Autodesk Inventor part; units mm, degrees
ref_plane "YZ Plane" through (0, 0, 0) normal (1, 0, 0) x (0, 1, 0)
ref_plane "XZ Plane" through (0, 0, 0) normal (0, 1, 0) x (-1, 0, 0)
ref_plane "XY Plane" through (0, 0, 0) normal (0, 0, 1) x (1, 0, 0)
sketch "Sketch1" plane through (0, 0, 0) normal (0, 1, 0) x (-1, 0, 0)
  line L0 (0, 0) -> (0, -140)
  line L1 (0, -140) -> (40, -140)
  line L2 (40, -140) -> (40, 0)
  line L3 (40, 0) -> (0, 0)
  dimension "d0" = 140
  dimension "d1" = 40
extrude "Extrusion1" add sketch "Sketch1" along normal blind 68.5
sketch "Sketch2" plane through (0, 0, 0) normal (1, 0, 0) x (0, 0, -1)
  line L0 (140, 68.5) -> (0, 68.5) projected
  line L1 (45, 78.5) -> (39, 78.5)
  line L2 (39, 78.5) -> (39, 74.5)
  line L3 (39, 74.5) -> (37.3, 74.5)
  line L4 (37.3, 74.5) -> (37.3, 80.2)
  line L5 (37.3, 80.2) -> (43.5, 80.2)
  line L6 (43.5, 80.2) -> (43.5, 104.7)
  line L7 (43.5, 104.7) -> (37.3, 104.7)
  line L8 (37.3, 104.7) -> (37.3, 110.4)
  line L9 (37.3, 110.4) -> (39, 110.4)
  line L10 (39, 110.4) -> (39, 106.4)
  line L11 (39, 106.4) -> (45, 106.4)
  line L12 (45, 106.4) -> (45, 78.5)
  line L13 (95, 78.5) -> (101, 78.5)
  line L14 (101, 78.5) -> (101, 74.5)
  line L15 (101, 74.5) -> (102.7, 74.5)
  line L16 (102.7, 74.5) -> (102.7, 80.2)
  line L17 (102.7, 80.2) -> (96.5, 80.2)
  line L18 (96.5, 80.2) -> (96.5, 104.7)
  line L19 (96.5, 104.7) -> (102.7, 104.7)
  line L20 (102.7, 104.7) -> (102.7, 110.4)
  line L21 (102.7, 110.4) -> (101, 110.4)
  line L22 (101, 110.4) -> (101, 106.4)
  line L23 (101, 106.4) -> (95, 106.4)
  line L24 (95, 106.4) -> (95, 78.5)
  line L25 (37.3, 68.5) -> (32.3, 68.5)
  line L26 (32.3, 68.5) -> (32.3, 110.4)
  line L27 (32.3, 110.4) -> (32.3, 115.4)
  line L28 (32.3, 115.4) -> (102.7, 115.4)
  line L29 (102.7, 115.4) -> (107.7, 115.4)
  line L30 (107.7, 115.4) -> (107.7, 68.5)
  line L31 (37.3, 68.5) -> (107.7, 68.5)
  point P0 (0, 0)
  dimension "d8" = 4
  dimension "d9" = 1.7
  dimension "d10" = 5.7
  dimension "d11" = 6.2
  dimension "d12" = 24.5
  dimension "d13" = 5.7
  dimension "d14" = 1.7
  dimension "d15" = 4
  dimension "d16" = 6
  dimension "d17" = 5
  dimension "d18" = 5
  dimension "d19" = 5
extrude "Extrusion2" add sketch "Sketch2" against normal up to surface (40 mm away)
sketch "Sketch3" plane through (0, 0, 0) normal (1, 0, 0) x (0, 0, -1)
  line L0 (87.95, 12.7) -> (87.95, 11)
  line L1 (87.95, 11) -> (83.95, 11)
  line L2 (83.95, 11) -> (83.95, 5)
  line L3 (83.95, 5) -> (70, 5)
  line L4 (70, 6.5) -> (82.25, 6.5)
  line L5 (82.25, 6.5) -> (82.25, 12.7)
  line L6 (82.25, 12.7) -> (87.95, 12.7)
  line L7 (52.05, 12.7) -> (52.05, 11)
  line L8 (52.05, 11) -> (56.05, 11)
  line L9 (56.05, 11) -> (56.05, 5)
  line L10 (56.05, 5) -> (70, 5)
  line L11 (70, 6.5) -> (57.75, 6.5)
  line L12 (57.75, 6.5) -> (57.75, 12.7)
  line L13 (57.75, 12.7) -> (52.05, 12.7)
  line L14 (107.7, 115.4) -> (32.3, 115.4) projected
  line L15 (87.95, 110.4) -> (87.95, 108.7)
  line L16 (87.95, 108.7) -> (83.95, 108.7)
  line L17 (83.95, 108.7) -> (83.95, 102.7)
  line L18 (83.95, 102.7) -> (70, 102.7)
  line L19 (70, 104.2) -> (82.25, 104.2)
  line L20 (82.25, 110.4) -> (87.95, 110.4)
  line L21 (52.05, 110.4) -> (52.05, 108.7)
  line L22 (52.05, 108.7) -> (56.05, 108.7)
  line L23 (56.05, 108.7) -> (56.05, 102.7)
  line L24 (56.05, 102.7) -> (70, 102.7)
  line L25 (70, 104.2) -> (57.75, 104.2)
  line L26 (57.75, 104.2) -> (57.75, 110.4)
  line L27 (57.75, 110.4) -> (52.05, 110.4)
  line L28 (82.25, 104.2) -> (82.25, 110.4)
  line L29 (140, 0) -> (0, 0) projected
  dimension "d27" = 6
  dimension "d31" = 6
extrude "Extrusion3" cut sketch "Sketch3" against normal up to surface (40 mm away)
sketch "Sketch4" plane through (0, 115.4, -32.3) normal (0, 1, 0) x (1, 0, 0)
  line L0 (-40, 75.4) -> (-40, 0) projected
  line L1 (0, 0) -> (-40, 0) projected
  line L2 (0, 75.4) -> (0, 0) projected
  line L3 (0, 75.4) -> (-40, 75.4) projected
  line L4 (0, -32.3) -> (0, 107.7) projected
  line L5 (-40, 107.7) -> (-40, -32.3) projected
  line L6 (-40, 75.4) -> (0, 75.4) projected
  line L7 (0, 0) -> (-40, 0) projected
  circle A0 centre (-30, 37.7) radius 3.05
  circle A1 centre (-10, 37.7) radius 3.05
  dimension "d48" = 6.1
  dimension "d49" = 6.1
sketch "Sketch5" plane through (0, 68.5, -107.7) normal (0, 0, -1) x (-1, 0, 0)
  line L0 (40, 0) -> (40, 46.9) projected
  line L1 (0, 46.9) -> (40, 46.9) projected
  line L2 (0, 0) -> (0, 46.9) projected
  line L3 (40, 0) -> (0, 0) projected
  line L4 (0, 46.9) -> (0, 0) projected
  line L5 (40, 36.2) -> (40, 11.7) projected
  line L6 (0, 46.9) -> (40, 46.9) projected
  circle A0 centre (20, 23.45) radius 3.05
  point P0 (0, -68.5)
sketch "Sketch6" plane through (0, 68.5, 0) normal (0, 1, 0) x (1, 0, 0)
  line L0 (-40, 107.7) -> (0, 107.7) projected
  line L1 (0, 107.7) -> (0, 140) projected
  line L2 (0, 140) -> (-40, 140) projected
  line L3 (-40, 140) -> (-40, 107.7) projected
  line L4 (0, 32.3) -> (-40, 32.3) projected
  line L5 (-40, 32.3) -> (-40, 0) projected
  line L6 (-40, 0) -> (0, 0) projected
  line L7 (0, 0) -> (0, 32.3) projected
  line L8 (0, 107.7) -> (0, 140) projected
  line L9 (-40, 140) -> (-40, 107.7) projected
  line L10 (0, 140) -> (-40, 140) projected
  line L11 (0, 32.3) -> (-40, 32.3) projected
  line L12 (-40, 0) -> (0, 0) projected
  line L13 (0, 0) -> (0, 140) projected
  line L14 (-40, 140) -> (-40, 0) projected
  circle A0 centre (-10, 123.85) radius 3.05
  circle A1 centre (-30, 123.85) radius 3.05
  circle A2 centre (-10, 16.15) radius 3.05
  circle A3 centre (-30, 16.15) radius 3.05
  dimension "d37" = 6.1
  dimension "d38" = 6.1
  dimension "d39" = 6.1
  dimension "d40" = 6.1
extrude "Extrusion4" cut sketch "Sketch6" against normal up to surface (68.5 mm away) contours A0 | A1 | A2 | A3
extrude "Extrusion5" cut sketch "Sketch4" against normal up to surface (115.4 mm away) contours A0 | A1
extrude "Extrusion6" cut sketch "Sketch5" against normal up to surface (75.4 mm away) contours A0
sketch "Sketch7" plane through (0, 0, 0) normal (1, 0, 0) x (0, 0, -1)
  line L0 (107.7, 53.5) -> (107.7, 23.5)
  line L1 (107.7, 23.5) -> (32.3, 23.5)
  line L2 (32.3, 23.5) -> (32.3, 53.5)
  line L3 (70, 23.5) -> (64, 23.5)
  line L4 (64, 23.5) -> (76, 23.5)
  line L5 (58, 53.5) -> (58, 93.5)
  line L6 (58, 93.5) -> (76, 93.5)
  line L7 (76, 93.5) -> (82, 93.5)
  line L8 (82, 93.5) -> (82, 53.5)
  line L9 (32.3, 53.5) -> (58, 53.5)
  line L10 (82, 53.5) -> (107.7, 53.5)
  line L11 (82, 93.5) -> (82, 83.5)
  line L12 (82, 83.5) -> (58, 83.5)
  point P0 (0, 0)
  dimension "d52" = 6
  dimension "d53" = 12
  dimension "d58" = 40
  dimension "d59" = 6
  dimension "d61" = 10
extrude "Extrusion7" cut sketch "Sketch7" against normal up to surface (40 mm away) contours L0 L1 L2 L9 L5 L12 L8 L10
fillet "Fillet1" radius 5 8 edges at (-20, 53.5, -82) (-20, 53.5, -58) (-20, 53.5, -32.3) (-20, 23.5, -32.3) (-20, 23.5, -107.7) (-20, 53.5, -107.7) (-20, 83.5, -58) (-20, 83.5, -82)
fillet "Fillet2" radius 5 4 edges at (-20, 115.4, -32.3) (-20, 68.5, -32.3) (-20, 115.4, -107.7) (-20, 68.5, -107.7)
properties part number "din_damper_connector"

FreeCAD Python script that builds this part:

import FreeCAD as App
import Part
import Sketcher


def edges_at(feature, points):
    """Names of the edges that pass closest to the given points."""
    edges = feature.Shape.Edges
    near = lambda p: min(range(len(edges)), key=lambda i: edges[i].distToShape(Part.Vertex(*p))[0])
    return sorted({f"Edge{near(p) + 1}" for p in points})


def add_polygon(sketch, points):
    """Adds a closed chain of lines whose ends are joined by coincident constraints."""
    first, n = sketch.GeometryCount, len(points)
    for a, b in zip(points, points[1:] + points[:1]):
        sketch.addGeometry(Part.LineSegment(App.Vector(*a, 0), App.Vector(*b, 0)), False)
    for i in range(n):
        sketch.addConstraint(Sketcher.Constraint("Coincident", first + i, 2, first + (i + 1) % n, 1))

doc = App.newDocument("Part")
body = doc.addObject("PartDesign::Body", "Body")

# Sketch on XZ plane
sketch1 = body.newObject("Sketcher::SketchObject", "Sketch")
sketch1.AttachmentSupport = (doc.getObject("XZ_Plane"), [""])
sketch1.MapMode = "FlatFace"
add_polygon(sketch1, [(-40, 0), (0, 0), (0, -140), (-40, -140)])  # lines 0-3
sketch1.addConstraint([
    Sketcher.Constraint("Horizontal", 0),
    Sketcher.Constraint("Vertical", 1),
    Sketcher.Constraint("Horizontal", 2),
    Sketcher.Constraint("Vertical", 3),
    Sketcher.Constraint("Coincident", 0, 2, -1, 1),
    Sketcher.Constraint("DistanceX", 0, 1, 0, 2, 40.0),
    Sketcher.Constraint("DistanceY", 1, 2, 1, 1, 140.0),
])
pad1 = body.newObject("PartDesign::Pad", "Pad")
pad1.Profile = sketch1
pad1.Length = 68.5
pad1.Reversed = True

# Sketch on YZ plane
sketch2 = body.newObject("Sketcher::SketchObject", "Sketch001")
sketch2.AttachmentSupport = (doc.getObject("YZ_Plane"), [""])
sketch2.MapMode = "FlatFace"
add_polygon(sketch2, [(68.5, -32.3), (68.5, -107.7), (115.4, -107.7), (115.4, -32.3)])  # lines 0-3
add_polygon(sketch2, [(106.4, -45), (78.5, -45), (78.5, -39), (74.5, -39), (74.5, -37.3), (80.2, -37.3), (80.2, -43.5), (104.7, -43.5), (104.7, -37.3), (110.4, -37.3), (110.4, -39), (106.4, -39)])  # lines 4-15
add_polygon(sketch2, [(78.5, -101), (78.5, -95), (106.4, -95), (106.4, -101), (110.4, -101), (110.4, -102.7), (104.7, -102.7), (104.7, -96.5), (80.2, -96.5), (80.2, -102.7), (74.5, -102.7), (74.5, -101)])  # lines 16-27
sketch2.addConstraint([
    Sketcher.Constraint("Vertical", 0),
    Sketcher.Constraint("Horizontal", 1),
    Sketcher.Constraint("Vertical", 2),
    Sketcher.Constraint("Horizontal", 3),
    Sketcher.Constraint("Horizontal", 4),
    Sketcher.Constraint("Vertical", 5),
    Sketcher.Constraint("Horizontal", 6),
    Sketcher.Constraint("Vertical", 7),
    Sketcher.Constraint("Horizontal", 8),
    Sketcher.Constraint("Vertical", 9),
    Sketcher.Constraint("Horizontal", 10),
    Sketcher.Constraint("Vertical", 11),
    Sketcher.Constraint("Horizontal", 12),
    Sketcher.Constraint("Vertical", 13),
    Sketcher.Constraint("Horizontal", 14),
    Sketcher.Constraint("Vertical", 15),
    Sketcher.Constraint("Vertical", 16),
    Sketcher.Constraint("Horizontal", 17),
    Sketcher.Constraint("Vertical", 18),
    Sketcher.Constraint("Horizontal", 19),
    Sketcher.Constraint("Vertical", 20),
    Sketcher.Constraint("Horizontal", 21),
    Sketcher.Constraint("Vertical", 22),
    Sketcher.Constraint("Horizontal", 23),
    Sketcher.Constraint("Vertical", 24),
    Sketcher.Constraint("Horizontal", 25),
    Sketcher.Constraint("Vertical", 26),
    Sketcher.Constraint("Horizontal", 27),
    Sketcher.Constraint("Horizontal", 8, 2, 11, 2),
    Sketcher.Constraint("Horizontal", 6, 2, 13, 2),
    Sketcher.Constraint("Horizontal", 21, 2, 24, 2),
    Sketcher.Constraint("Horizontal", 19, 2, 26, 2),
    Sketcher.Constraint("Vertical", 5, 2, 16, 2),
    Sketcher.Constraint("Vertical", 15, 2, 17, 2),
    Sketcher.Constraint("Vertical", 13, 2, 19, 2),
    Sketcher.Constraint("Vertical", 11, 2, 21, 2),
    Sketcher.Constraint("Vertical", 9, 2, 23, 2),
    Sketcher.Constraint("Vertical", 7, 2, 25, 2),
    Sketcher.Constraint("Equal", 8, 12),
    Sketcher.Constraint("Equal", 6, 14),
    Sketcher.Constraint("Equal", 15, 16),
    Sketcher.Constraint("Equal", 13, 20),
    Sketcher.Constraint("Equal", 11, 22),
    Sketcher.Constraint("DistanceX", 6, 2, 6, 1, 4.0),
    Sketcher.Constraint("DistanceY", 5, 1, 5, 2, 6.0),
    Sketcher.Constraint("DistanceX", 8, 1, 8, 2, 5.7),
    Sketcher.Constraint("DistanceX", 10, 1, 10, 2, 24.5),
    Sketcher.Constraint("DistanceY", 7, 1, 7, 2, 1.7),
    Sketcher.Constraint("DistanceY", 9, 2, 9, 1, 6.2),
    Sketcher.Constraint("DistanceX", 3, 2, 6, 2, 6.0),
    Sketcher.Constraint("DistanceY", 7, 2, 3, 2, 5.0),
    Sketcher.Constraint("DistanceX", 12, 2, 2, 2, 5.0),
    Sketcher.Constraint("DistanceY", 1, 2, 20, 2, 5.0),
    Sketcher.Constraint("DistanceY", 0, 2, 0, 1, 75.4),
    Sketcher.Constraint("DistanceY", 4, 2, -1, 1, 45.0),
    Sketcher.Constraint("DistanceX", -1, 1, 0, 2, 68.5),
])
pad2 = body.newObject("PartDesign::Pad", "Pad001")
pad2.Profile = sketch2
pad2.Length = 40
pad2.Reversed = True

# Sketch on YZ plane
sketch3 = body.newObject("Sketcher::SketchObject", "Sketch002")
sketch3.AttachmentSupport = (doc.getObject("YZ_Plane"), [""])
sketch3.MapMode = "FlatFace"
add_polygon(sketch3, [(11, -87.95), (12.7, -87.95), (12.7, -82.25), (6.5, -82.25), (6.5, -57.75), (12.7, -57.75), (12.7, -52.05), (11, -52.05), (11, -56.05), (5, -56.05), (5, -83.95), (11, -83.95)])  # lines 0-11
add_polygon(sketch3, [(108.7, -87.95), (110.4, -87.95), (110.4, -82.25), (104.2, -82.25), (104.2, -57.75), (110.4, -57.75), (110.4, -52.05), (108.7, -52.05), (108.7, -56.05), (102.7, -56.05), (102.7, -83.95), (108.7, -83.95)])  # lines 12-23
sketch3.addConstraint([
    Sketcher.Constraint("Horizontal", 0),
    Sketcher.Constraint("Vertical", 1),
    Sketcher.Constraint("Horizontal", 2),
    Sketcher.Constraint("Vertical", 3),
    Sketcher.Constraint("Horizontal", 4),
    Sketcher.Constraint("Vertical", 5),
    Sketcher.Constraint("Horizontal", 6),
    Sketcher.Constraint("Vertical", 7),
    Sketcher.Constraint("Horizontal", 8),
    Sketcher.Constraint("Vertical", 9),
    Sketcher.Constraint("Horizontal", 10),
    Sketcher.Constraint("Vertical", 11),
    Sketcher.Constraint("Horizontal", 12),
    Sketcher.Constraint("Vertical", 13),
    Sketcher.Constraint("Horizontal", 14),
    Sketcher.Constraint("Vertical", 15),
    Sketcher.Constraint("Horizontal", 16),
    Sketcher.Constraint("Vertical", 17),
    Sketcher.Constraint("Horizontal", 18),
    Sketcher.Constraint("Vertical", 19),
    Sketcher.Constraint("Horizontal", 20),
    Sketcher.Constraint("Vertical", 21),
    Sketcher.Constraint("Horizontal", 22),
    Sketcher.Constraint("Vertical", 23),
    Sketcher.Constraint("Horizontal", 11, 2, 12, 2),
    Sketcher.Constraint("Horizontal", 2, 2, 13, 2),
    Sketcher.Constraint("Horizontal", 4, 2, 15, 2),
    Sketcher.Constraint("Horizontal", 6, 2, 17, 2),
    Sketcher.Constraint("Horizontal", 8, 2, 19, 2),
    Sketcher.Constraint("Horizontal", 10, 2, 21, 2),
    Sketcher.Constraint("Vertical", 1, 2, 4, 2),
    Sketcher.Constraint("Vertical", 7, 2, 10, 2),
    Sketcher.Constraint("Vertical", 13, 2, 16, 2),
    Sketcher.Constraint("Vertical", 19, 2, 22, 2),
    Sketcher.Constraint("Equal", 6, 12),
    Sketcher.Constraint("Equal", 4, 14),
    Sketcher.Constraint("Equal", 10, 20),
    Sketcher.Constraint("Equal", 1, 5),
    Sketcher.Constraint("Equal", 7, 11),
    Sketcher.Constraint("DistanceX", 8, 2, 8, 1, 6.0),
    Sketcher.Constraint("DistanceY", 7, 2, 7, 1, 4.0),
    Sketcher.Constraint("DistanceX", 0, 1, 0, 2, 1.7),
    Sketcher.Constraint("DistanceX", 2, 2, 2, 1, 6.2),
    Sketcher.Constraint("DistanceY", 1, 1, 1, 2, 5.7),
    Sketcher.Constraint("DistanceY", 3, 1, 3, 2, 24.5),
    Sketcher.Constraint("DistanceX", -1, 1, 6, 2, 11.0),
    Sketcher.Constraint("DistanceX", -1, 1, 12, 2, 110.4),
    Sketcher.Constraint("DistanceY", 0, 2, -1, 1, 87.95),
])
pocket1 = body.newObject("PartDesign::Pocket", "Pocket")
pocket1.Profile = sketch3
pocket1.Length = 40

# Sketch on XZ plane
sketch4 = body.newObject("Sketcher::SketchObject", "Sketch003")
sketch4.AttachmentSupport = (doc.getObject("XZ_Plane"), [""])
sketch4.MapMode = "FlatFace"
sketch4.AttachmentOffset = App.Placement(App.Vector(0, 0, -68.5), App.Rotation())
sketch4.addGeometry([
    Part.Circle(App.Vector(-10, -123.85, 0), App.Vector(0, 0, 1), 3.05),
    Part.Circle(App.Vector(-30, -123.85, 0), App.Vector(0, 0, 1), 3.05),
    Part.Circle(App.Vector(-10, -16.15, 0), App.Vector(0, 0, 1), 3.05),
    Part.Circle(App.Vector(-30, -16.15, 0), App.Vector(0, 0, 1), 3.05),
], False)
sketch4.addConstraint([
    Sketcher.Constraint("Equal", 0, 1),
    Sketcher.Constraint("Equal", 1, 2),
    Sketcher.Constraint("Equal", 2, 3),
    Sketcher.Constraint("Horizontal", 0, 3, 1, 3),
    Sketcher.Constraint("Horizontal", 2, 3, 3, 3),
    Sketcher.Constraint("Vertical", 0, 3, 2, 3),
    Sketcher.Constraint("Vertical", 1, 3, 3, 3),
    Sketcher.Constraint("Diameter", 0, 6.1),
    Sketcher.Constraint("DistanceX", 0, 3, -1, 1, 10.0),
    Sketcher.Constraint("DistanceX", 1, 3, -1, 1, 30.0),
    Sketcher.Constraint("DistanceY", 0, 3, 2, 3, 107.7),
    Sketcher.Constraint("DistanceY", 0, 3, -1, 1, 123.85),
])
pocket2 = body.newObject("PartDesign::Pocket", "Pocket001")
pocket2.Profile = sketch4
pocket2.Length = 68.5
pocket2.Reversed = True

# Sketch on XZ plane
sketch5 = body.newObject("Sketcher::SketchObject", "Sketch004")
sketch5.AttachmentSupport = (doc.getObject("XZ_Plane"), [""])
sketch5.MapMode = "FlatFace"
sketch5.AttachmentOffset = App.Placement(App.Vector(0, 0, -115.4), App.Rotation())
sketch5.addGeometry([
    Part.Circle(App.Vector(-30, -70, 0), App.Vector(0, 0, 1), 3.05),
    Part.Circle(App.Vector(-10, -70, 0), App.Vector(0, 0, 1), 3.05),
], False)
sketch5.addConstraint([
    Sketcher.Constraint("Equal", 0, 1),
    Sketcher.Constraint("Horizontal", 0, 3, 1, 3),
    Sketcher.Constraint("Diameter", 0, 6.1),
    Sketcher.Constraint("DistanceX", 0, 3, -1, 1, 30.0),
    Sketcher.Constraint("DistanceY", 0, 3, -1, 1, 70.0),
    Sketcher.Constraint("DistanceX", 1, 3, -1, 1, 10.0),
])
pocket3 = body.newObject("PartDesign::Pocket", "Pocket002")
pocket3.Profile = sketch5
pocket3.Length = 115.4
pocket3.Reversed = True

# Sketch on XY plane
sketch6 = body.newObject("Sketcher::SketchObject", "Sketch005")
sketch6.AttachmentSupport = (doc.getObject("XY_Plane"), [""])
sketch6.MapMode = "FlatFace"
sketch6.AttachmentOffset = App.Placement(App.Vector(0, 0, -107.7), App.Rotation())
sketch6.addGeometry(Part.Circle(App.Vector(-20, 91.95, 0), App.Vector(0, 0, 1), 3.05), False)
sketch6.addConstraint([
    Sketcher.Constraint("Diameter", 0, 6.1),
    Sketcher.Constraint("DistanceX", 0, 3, -1, 1, 20.0),
    Sketcher.Constraint("DistanceY", -1, 1, 0, 3, 91.95),
])
pocket4 = body.newObject("PartDesign::Pocket", "Pocket003")
pocket4.Profile = sketch6
pocket4.Length = 75.4
pocket4.Reversed = True

# Sketch on YZ plane
sketch7 = body.newObject("Sketcher::SketchObject", "Sketch006")
sketch7.AttachmentSupport = (doc.getObject("YZ_Plane"), [""])
sketch7.MapMode = "FlatFace"
add_polygon(sketch7, [(23.5, -107.7), (53.5, -107.7), (53.5, -82), (83.5, -82), (83.5, -58), (53.5, -58), (53.5, -32.3), (23.5, -32.3)])  # lines 0-7
sketch7.addConstraint([
    Sketcher.Constraint("Horizontal", 0),
    Sketcher.Constraint("Vertical", 1),
    Sketcher.Constraint("Horizontal", 2),
    Sketcher.Constraint("Vertical", 3),
    Sketcher.Constraint("Horizontal", 4),
    Sketcher.Constraint("Vertical", 5),
    Sketcher.Constraint("Horizontal", 6),
    Sketcher.Constraint("Vertical", 7),
    Sketcher.Constraint("Vertical", 1, 2, 4, 2),
    Sketcher.Constraint("Equal", 0, 2),
    Sketcher.Constraint("Equal", 1, 5),
    Sketcher.Constraint("DistanceX", 0, 1, 0, 2, 30.0),
    Sketcher.Constraint("DistanceY", 3, 1, 3, 2, 24.0),
    Sketcher.Constraint("DistanceY", 1, 1, 1, 2, 25.7),
    Sketcher.Constraint("DistanceY", 1, 2, -1, 1, 82.0),
    Sketcher.Constraint("DistanceX", -1, 1, 0, 2, 53.5),
])
pocket5 = body.newObject("PartDesign::Pocket", "Pocket004")
pocket5.Profile = sketch7
pocket5.Length = 40
doc.recompute()

fillet = body.newObject("PartDesign::Fillet", "Fillet")
fillet.Base = (pocket5, edges_at(pocket5, [
    (-20, 53.5, -82),
    (-20, 53.5, -58),
    (-20, 53.5, -32.3),
    (-20, 23.5, -32.3),
    (-20, 23.5, -107.7),
    (-20, 53.5, -107.7),
    (-20, 83.5, -58),
    (-20, 83.5, -82),
]))
fillet.Radius = 5
doc.recompute()

fillet2 = body.newObject("PartDesign::Fillet", "Fillet001")
fillet2.Base = (fillet, edges_at(fillet, [
    (-20, 115.4, -32.3),
    (-20, 68.5, -32.3),
    (-20, 115.4, -107.7),
    (-20, 68.5, -107.7),
]))
fillet2.Radius = 5

doc.recompute()
